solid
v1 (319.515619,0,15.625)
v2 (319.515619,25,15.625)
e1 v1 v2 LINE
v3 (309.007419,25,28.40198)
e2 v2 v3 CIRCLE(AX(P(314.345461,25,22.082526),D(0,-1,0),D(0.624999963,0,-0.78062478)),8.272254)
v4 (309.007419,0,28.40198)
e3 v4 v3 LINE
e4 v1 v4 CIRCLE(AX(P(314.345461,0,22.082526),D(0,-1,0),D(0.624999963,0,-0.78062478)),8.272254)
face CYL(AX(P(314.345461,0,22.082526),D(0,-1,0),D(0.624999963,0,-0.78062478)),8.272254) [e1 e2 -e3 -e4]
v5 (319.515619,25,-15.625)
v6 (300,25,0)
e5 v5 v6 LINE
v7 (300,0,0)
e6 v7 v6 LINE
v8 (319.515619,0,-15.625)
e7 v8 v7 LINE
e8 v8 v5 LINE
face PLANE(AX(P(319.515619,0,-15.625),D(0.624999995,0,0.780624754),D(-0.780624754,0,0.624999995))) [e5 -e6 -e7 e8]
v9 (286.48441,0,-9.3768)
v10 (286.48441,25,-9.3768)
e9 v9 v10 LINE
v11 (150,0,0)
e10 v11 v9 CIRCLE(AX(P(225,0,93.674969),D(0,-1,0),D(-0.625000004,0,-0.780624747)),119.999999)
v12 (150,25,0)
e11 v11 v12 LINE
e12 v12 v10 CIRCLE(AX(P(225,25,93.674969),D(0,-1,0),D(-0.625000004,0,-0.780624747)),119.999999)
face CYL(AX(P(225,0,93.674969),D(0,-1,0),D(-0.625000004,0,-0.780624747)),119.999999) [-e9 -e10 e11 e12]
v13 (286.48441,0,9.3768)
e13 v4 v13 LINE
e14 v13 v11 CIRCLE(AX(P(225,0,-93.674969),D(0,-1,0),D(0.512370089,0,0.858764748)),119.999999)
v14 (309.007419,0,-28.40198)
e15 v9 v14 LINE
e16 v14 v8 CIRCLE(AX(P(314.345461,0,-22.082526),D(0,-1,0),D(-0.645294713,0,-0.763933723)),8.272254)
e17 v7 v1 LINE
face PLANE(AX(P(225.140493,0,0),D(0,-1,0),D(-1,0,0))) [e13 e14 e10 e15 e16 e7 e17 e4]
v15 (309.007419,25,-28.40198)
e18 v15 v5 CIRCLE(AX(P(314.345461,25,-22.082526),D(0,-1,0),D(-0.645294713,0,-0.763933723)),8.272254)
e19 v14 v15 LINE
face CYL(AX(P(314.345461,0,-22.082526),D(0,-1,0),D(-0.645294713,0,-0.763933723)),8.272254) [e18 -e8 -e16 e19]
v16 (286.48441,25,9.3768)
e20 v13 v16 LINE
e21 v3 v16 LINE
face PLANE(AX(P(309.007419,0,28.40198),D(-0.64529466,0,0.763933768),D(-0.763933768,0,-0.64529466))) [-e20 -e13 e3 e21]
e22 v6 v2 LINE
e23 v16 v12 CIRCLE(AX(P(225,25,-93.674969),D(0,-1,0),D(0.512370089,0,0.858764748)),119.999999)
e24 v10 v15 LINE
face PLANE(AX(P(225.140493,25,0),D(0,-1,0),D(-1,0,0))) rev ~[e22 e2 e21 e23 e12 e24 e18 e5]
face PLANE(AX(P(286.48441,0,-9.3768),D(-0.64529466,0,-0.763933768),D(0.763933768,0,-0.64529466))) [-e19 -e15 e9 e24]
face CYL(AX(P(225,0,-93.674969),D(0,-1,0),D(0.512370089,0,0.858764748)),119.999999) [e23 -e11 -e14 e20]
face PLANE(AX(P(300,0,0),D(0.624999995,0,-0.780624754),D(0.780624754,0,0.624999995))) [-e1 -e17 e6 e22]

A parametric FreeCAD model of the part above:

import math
import FreeCAD as App
import Part
import Sketcher

V = App.Vector

doc = App.newDocument("Part")
body = doc.addObject("PartDesign::Body", "Body")

# Sketch on XZ plane
sketch1 = body.newObject("Sketcher::SketchObject", "Sketch")
sketch1.AttachmentSupport = (doc.getObject("XZ_Plane"), [""])
sketch1.MapMode = "FlatFace"
sketch1.addGeometry([
    Part.ArcOfCircle(Part.Circle(V(75, 94, 0), V(0, 0, 1), 120), math.radians(-121), math.radians(-51)),  # 0
    Part.ArcOfCircle(Part.Circle(V(75, -94, 0), V(0, 0, 1), 120), math.radians(51), math.radians(121)),  # 1
    Part.LineSegment(V(14, 9, 0), V(-9, 28, 0)),  # 2
    Part.ArcOfCircle(Part.Circle(V(-14, 22, 0), V(0, 0, 1), 8), math.radians(50), math.radians(231)),  # 3
    Part.LineSegment(V(-20, 16, 0), V(0, 0, 0)),  # 4
    Part.LineSegment(V(0, 0, 0), V(-20, -16, 0)),  # 5
    Part.ArcOfCircle(Part.Circle(V(-14, -22, 0), V(0, 0, 1), 8), math.radians(129), math.radians(310)),  # 6
    Part.LineSegment(V(-9, -28, 0), V(14, -9, 0)),  # 7
], False)
sketch1.addConstraint([
    Sketcher.Constraint("Coincident", 0, 2, 1, 1),
    Sketcher.Constraint("Coincident", 1, 2, 2, 1),
    Sketcher.Constraint("Tangent", 2, 2, 3, 1),
    Sketcher.Constraint("Tangent", 3, 2, 4, 1),
    Sketcher.Constraint("Coincident", 4, 2, 5, 1),
    Sketcher.Constraint("Tangent", 5, 2, 6, 1),
    Sketcher.Constraint("Tangent", 6, 2, 7, 1),
    Sketcher.Constraint("Coincident", 7, 2, 0, 1),
    Sketcher.Constraint("Coincident", 4, 2, -1, 1),
    Sketcher.Constraint("Equal", 0, 1),
    Sketcher.Constraint("Equal", 3, 6),
    Sketcher.Constraint("Symmetric", 0, 3, 1, 3, -1),
    Sketcher.Constraint("Symmetric", 3, 3, 6, 3, -1),
    Sketcher.Constraint("Vertical", 2, 2, 6, 2),
    Sketcher.Constraint("Radius", 0, 119.999999),
    Sketcher.Constraint("Distance", 4, 25.0),
    Sketcher.Constraint("DistanceX", -1, 1, 0, 3, 75.0),
    Sketcher.Constraint("DistanceX", -1, 1, 0, 2, 150.0),
    Sketcher.Constraint("DistanceY", 5, 2, 3, 2, 31.25),
    Sketcher.Constraint("Radius", 3, 8.272254),
    Sketcher.Constraint("DistanceY", -1, 1, 1, 2, 9.3768),
])
pad1 = body.newObject("PartDesign::Pad", "Pad")
pad1.Profile = sketch1
pad1.Length = 25
pad1.Reversed = True
body2 = doc.addObject("PartDesign::Body", "Body001")
doc.recompute()

body.Placement = App.Placement(V(300, 0, 0), App.Rotation(V(0, -1, 0), 180))
boolean = body2.newObject("PartDesign::Boolean", "Boolean")
boolean.Type = "Fuse"
boolean.addObjects([body])

doc.recompute()
